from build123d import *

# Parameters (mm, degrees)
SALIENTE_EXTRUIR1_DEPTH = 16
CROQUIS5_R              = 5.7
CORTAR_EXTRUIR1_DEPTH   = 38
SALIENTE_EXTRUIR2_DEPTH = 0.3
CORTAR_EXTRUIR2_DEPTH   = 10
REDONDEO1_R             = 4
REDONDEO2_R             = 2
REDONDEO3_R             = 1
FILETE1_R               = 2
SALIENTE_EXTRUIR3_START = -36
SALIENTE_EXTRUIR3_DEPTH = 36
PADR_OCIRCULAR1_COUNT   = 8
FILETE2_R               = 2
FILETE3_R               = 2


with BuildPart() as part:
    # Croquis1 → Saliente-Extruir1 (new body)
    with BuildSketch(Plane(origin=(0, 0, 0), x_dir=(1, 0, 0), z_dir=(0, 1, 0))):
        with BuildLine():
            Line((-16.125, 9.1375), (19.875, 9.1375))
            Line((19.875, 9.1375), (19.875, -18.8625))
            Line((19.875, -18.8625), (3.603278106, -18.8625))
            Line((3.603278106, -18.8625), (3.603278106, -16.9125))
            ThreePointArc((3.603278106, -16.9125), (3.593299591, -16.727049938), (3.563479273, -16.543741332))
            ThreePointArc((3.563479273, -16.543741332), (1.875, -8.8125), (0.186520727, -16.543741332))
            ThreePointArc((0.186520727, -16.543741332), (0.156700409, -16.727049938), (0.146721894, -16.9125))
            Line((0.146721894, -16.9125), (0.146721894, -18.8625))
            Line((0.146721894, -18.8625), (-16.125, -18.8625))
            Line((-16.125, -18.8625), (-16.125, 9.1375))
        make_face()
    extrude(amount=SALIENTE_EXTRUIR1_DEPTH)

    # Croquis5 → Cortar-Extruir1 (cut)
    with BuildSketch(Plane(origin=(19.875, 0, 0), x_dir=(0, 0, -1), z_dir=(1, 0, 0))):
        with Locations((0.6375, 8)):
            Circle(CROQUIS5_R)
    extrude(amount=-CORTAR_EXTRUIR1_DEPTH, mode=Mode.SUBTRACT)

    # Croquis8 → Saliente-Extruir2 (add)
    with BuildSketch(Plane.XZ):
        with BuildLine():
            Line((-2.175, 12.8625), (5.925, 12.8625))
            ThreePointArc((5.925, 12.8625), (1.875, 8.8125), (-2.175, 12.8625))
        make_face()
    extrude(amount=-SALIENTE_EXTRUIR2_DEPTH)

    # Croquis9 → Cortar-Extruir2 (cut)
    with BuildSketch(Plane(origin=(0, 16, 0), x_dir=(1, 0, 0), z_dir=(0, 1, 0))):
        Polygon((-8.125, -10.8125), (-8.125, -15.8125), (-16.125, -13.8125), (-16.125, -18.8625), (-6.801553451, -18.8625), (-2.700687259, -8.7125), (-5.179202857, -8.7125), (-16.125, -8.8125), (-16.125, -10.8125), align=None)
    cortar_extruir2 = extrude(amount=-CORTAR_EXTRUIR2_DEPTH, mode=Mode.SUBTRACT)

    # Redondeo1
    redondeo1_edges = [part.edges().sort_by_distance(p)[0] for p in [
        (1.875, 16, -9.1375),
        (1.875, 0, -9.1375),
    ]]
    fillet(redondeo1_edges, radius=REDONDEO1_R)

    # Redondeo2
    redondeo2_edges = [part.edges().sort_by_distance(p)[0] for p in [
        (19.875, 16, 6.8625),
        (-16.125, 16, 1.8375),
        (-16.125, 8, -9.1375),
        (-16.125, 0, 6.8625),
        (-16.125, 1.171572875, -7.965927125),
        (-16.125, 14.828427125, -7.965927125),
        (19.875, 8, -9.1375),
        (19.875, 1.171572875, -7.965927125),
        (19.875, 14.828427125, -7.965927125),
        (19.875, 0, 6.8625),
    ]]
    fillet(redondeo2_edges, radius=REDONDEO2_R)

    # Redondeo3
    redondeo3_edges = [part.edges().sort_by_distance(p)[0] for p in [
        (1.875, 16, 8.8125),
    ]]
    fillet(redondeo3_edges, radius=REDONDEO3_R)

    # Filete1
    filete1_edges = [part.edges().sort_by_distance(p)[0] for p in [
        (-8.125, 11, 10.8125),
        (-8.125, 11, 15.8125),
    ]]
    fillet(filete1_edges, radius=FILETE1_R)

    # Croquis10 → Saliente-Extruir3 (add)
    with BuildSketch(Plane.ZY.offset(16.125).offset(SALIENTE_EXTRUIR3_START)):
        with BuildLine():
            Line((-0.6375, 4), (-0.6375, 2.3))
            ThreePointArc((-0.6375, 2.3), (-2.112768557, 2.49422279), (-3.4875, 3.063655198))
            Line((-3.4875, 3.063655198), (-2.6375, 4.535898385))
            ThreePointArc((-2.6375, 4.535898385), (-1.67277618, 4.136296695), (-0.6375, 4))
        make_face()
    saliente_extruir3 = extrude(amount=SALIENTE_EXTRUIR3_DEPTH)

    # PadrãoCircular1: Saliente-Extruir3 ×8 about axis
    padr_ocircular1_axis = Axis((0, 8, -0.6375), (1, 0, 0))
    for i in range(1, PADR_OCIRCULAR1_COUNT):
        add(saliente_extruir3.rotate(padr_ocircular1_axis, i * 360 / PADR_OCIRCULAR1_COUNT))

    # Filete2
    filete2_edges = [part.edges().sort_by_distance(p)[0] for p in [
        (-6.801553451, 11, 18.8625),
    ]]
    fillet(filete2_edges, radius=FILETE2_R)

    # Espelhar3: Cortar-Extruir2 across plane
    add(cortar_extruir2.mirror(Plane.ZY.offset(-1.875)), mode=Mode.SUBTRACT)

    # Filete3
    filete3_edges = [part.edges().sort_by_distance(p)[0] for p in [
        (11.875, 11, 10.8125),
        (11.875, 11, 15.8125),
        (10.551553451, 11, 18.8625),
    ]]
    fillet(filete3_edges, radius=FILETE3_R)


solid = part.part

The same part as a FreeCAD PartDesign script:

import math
import FreeCAD as App
import Part
import Sketcher
Q = App.Units.Quantity


def edges_at(feature, points):
    """Names of the edges that pass closest to the given points."""
    edges = feature.Shape.Edges
    near = lambda p: min(range(len(edges)), key=lambda i: edges[i].distToShape(Part.Vertex(*p))[0])
    return sorted({f"Edge{near(p) + 1}" for p in points})


def add_polygon(sketch, points):
    """Adds a closed chain of lines whose ends are joined by coincident constraints."""
    first, n = sketch.GeometryCount, len(points)
    for a, b in zip(points, points[1:] + points[:1]):
        sketch.addGeometry(Part.LineSegment(App.Vector(*a, 0), App.Vector(*b, 0)), False)
    for i in range(n):
        sketch.addConstraint(Sketcher.Constraint("Coincident", first + i, 2, first + (i + 1) % n, 1))

doc = App.newDocument("Part")
params = doc.addObject("Spreadsheet::Sheet", "Params")
for row, (alias, value) in enumerate([
    ("sketch1_width", "36 mm"),
    ("sketch1_height", "28 mm"),
    ("sketch1_radius", "4.05 mm"),
    ("sketch1_height2", "1.95 mm"),
    ("pad1_length", "16 mm"),
    ("sketch2_diameter", "11.4 mm"),
    ("pocket1_length", "38 mm"),
    ("sketch3_radius", "4.05 mm"),
    ("pad2_length", "0.3 mm"),
    ("sketch4_width", "8 mm"),
    ("sketch4_height", "5 mm"),
    ("sketch4_height2", "2 mm"),
    ("sketch4_height3", "5.05 mm"),
    ("pocket2_length", "10 mm"),
    ("fillet_radius", "4 mm"),
    ("fillet2_radius", "2 mm"),
    ("fillet3_radius", "1 mm"),
    ("fillet4_radius", "2 mm"),
    ("sketch5_radius", "4 mm"),
    ("sketch5_radius2", "5.7 mm"),
    ("pad3_length", "36 mm"),
    ("fillet5_radius", "2 mm"),
    ("fillet6_radius", "2 mm"),
], start=1):
    params.set(f"A{row}", alias)
    params.set(f"B{row}", "=" + value)
    params.setAlias(f"B{row}", alias)

body = doc.addObject("PartDesign::Body", "Body")

# Sketch on XZ plane
sketch1 = doc.addObject("Sketcher::SketchObject", "Sketch")
body.addObject(sketch1)
sketch1.AttachmentSupport = (doc.XZ_Plane, [""])
sketch1.MapMode = "FlatFace"
sketch1.addGeometry([
    Part.LineSegment(App.Vector(19.88, -9.14, 0), App.Vector(-16.12, -9.14, 0)),  # 0
    Part.LineSegment(App.Vector(-16.12, -9.14, 0), App.Vector(-16.12, 18.86, 0)),  # 1
    Part.LineSegment(App.Vector(-16.12, 18.86, 0), App.Vector(0.15, 18.86, 0)),  # 2
    Part.LineSegment(App.Vector(0.15, 18.86, 0), App.Vector(0.15, 16.91, 0)),  # 3
    Part.ArcOfCircle(Part.Circle(App.Vector(1.88, 16.91, 0), App.Vector(0, 0, 1), 1.73), math.radians(-180), math.radians(-167.68)),  # 4
    Part.ArcOfCircle(Part.Circle(App.Vector(1.88, 12.86, 0), App.Vector(0, 0, 1), 4.05), math.radians(115), math.radians(425)),  # 5
    Part.ArcOfCircle(Part.Circle(App.Vector(1.87, 16.91, 0), App.Vector(0, 0, 1), 1.73), math.radians(-12.32), math.radians(0)),  # 6
    Part.LineSegment(App.Vector(3.6, 16.91, 0), App.Vector(3.6, 18.86, 0)),  # 7
    Part.LineSegment(App.Vector(3.6, 18.86, 0), App.Vector(19.88, 18.86, 0)),  # 8
    Part.LineSegment(App.Vector(19.88, 18.86, 0), App.Vector(19.88, -9.14, 0)),  # 9
], False)
sketch1.addConstraint([
    Sketcher.Constraint("Coincident", 0, 2, 1, 1),
    Sketcher.Constraint("Coincident", 1, 2, 2, 1),
    Sketcher.Constraint("Coincident", 2, 2, 3, 1),
    Sketcher.Constraint("Tangent", 3, 2, 4, 1),
    Sketcher.Constraint("Coincident", 4, 2, 5, 1),
    Sketcher.Constraint("Coincident", 5, 2, 6, 1),
    Sketcher.Constraint("Tangent", 6, 2, 7, 1),
    Sketcher.Constraint("Coincident", 7, 2, 8, 1),
    Sketcher.Constraint("Coincident", 8, 2, 9, 1),
    Sketcher.Constraint("Coincident", 9, 2, 0, 1),
    Sketcher.Constraint("Horizontal", 0),
    Sketcher.Constraint("Vertical", 1),
    Sketcher.Constraint("Horizontal", 2),
    Sketcher.Constraint("Vertical", 3),
    Sketcher.Constraint("Vertical", 7),
    Sketcher.Constraint("Horizontal", 8),
    Sketcher.Constraint("Vertical", 9),
    Sketcher.Constraint("Coincident", 6, 3, 4, 3),
    Sketcher.Constraint("Equal", 4, 6),
    Sketcher.Constraint("Horizontal", 4, 2, 5, 2),
    Sketcher.Constraint("Horizontal", 2, 2, 7, 2),
    Sketcher.Constraint("Equal", 2, 8),
    Sketcher.Constraint("DistanceX", 0, 2, 0, 1, Q("36 mm")),
    Sketcher.Constraint("DistanceY", 1, 1, 1, 2, Q("28 mm")),
    Sketcher.Constraint("Radius", 5, Q("4.05 mm")),
    Sketcher.Constraint("DistanceY", 0, 2, 5, 3, Q("22 mm")),
    Sketcher.Constraint("DistanceY", 3, 2, 3, 1, Q("1.95 mm")),
    Sketcher.Constraint("Radius", 4, Q("1.728278 mm")),
    Sketcher.Constraint("DistanceX", -1, 1, 4, 3, Q("1.875 mm")),
    Sketcher.Constraint("DistanceY", -1, 1, 4, 3, Q("16.9125 mm")),
])
sketch1.setExpression("Constraints[22]", "Params.sketch1_width")
sketch1.setExpression("Constraints[23]", "Params.sketch1_height")
sketch1.setExpression("Constraints[24]", "Params.sketch1_radius")
sketch1.setExpression("Constraints[26]", "Params.sketch1_height2")
pad1 = doc.addObject("PartDesign::Pad", "Pad")
body.addObject(pad1)
pad1.Profile = sketch1
pad1.setExpression("Length", "Params.pad1_length")
pad1.Reversed = True

# Sketch on YZ plane
sketch2 = doc.addObject("Sketcher::SketchObject", "Sketch001")
body.addObject(sketch2)
sketch2.AttachmentSupport = (doc.YZ_Plane, [""])
sketch2.MapMode = "FlatFace"
sketch2.AttachmentOffset = App.Placement(App.Vector(0, 0, 19.875), App.Rotation())
sketch2.addGeometry(Part.Circle(App.Vector(8, -1, 0), App.Vector(0, 0, 1), 6), False)
sketch2.addConstraint([
    Sketcher.Constraint("Diameter", 0, Q("11.4 mm")),
    Sketcher.Constraint("DistanceX", -1, 1, 0, 3, Q("8 mm")),
    Sketcher.Constraint("DistanceY", 0, 3, -1, 1, Q("0.6375 mm")),
])
sketch2.setExpression("Constraints[0]", "Params.sketch2_diameter")
pocket1 = doc.addObject("PartDesign::Pocket", "Pocket")
body.addObject(pocket1)
pocket1.Profile = sketch2
pocket1.setExpression("Length", "Params.pocket1_length")

# Sketch on XZ plane
sketch3 = doc.addObject("Sketcher::SketchObject", "Sketch002")
body.addObject(sketch3)
sketch3.AttachmentSupport = (doc.XZ_Plane, [""])
sketch3.MapMode = "FlatFace"
sketch3.addGeometry([
    Part.LineSegment(App.Vector(5.9, 12.9, 0), App.Vector(-2.2, 12.9, 0)),
    Part.ArcOfCircle(Part.Circle(App.Vector(1.9, 12.9, 0), App.Vector(0, 0, 1), 4), math.radians(180), math.radians(360)),
], False)
sketch3.addConstraint([
    Sketcher.Constraint("Coincident", 0, 1, 1, 2),
    Sketcher.Constraint("Coincident", 1, 1, 0, 2),
    Sketcher.Constraint("Horizontal", 0),
    Sketcher.Constraint("Horizontal", 1, 3, 0, 1),
    Sketcher.Constraint("Radius", 1, Q("4.05 mm")),
    Sketcher.Constraint("DistanceX", -1, 1, 1, 3, Q("1.875 mm")),
    Sketcher.Constraint("DistanceY", -1, 1, 1, 3, Q("12.8625 mm")),
])
sketch3.setExpression("Constraints[4]", "Params.sketch3_radius")
pad2 = doc.addObject("PartDesign::Pad", "Pad001")
body.addObject(pad2)
pad2.Profile = sketch3
pad2.setExpression("Length", "Params.pad2_length")
pad2.Reversed = True

# Sketch on XZ plane
sketch4 = doc.addObject("Sketcher::SketchObject", "Sketch003")
body.addObject(sketch4)
sketch4.AttachmentSupport = (doc.XZ_Plane, [""])
sketch4.MapMode = "FlatFace"
sketch4.AttachmentOffset = App.Placement(App.Vector(0, 0, -16), App.Rotation())
add_polygon(sketch4, [(-8.1, 10.8), (-8.1, 15.8), (-16.1, 13.8), (-16.1, 18.9), (-6.8, 18.9), (-2.7, 8.7), (-5.2, 8.7), (-16.1, 8.8), (-16.1, 10.8)])  # lines 0-8
sketch4.addConstraint([
    Sketcher.Constraint("Vertical", 0),
    Sketcher.Constraint("Vertical", 2),
    Sketcher.Constraint("Horizontal", 3),
    Sketcher.Constraint("Horizontal", 5),
    Sketcher.Constraint("Vertical", 7),
    Sketcher.Constraint("Horizontal", 8),
    Sketcher.Constraint("Vertical", 2, 2, 6, 2),
    Sketcher.Constraint("DistanceX", 8, 1, 8, 2, Q("8 mm")),
    Sketcher.Constraint("DistanceY", 0, 1, 0, 2, Q("5 mm")),
    Sketcher.Constraint("DistanceY", 7, 1, 7, 2, Q("2 mm")),
    Sketcher.Constraint("Angle", 4, Q("-68 deg")),
    Sketcher.Constraint("DistanceY", 1, 2, 0, 2, Q("2 mm")),
    Sketcher.Constraint("DistanceY", 2, 1, 2, 2, Q("5.05 mm")),
    Sketcher.Constraint("DistanceY", 4, 2, 0, 2, Q("7.1 mm")),
    Sketcher.Constraint("DistanceX", 0, 2, -1, 1, Q("8.125 mm")),
    Sketcher.Constraint("DistanceY", -1, 1, 0, 2, Q("15.8125 mm")),
    Sketcher.Constraint("DistanceX", 3, 1, 3, 2, Q("9.323447 mm")),
    Sketcher.Constraint("DistanceX", 5, 2, 5, 1, Q("2.478516 mm")),
])
sketch4.setExpression("Constraints[16]", "Params.sketch4_width")
sketch4.setExpression("Constraints[17]", "Params.sketch4_height")
sketch4.setExpression("Constraints[18]", "Params.sketch4_height2")
sketch4.setExpression("Constraints[21]", "Params.sketch4_height3")
pocket2 = doc.addObject("PartDesign::Pocket", "Pocket001")
body.addObject(pocket2)
pocket2.Profile = sketch4
pocket2.setExpression("Length", "Params.pocket2_length")
pocket2.Reversed = True
doc.recompute()

fillet = doc.addObject("PartDesign::Fillet", "Fillet")
body.addObject(fillet)
fillet.Base = (pocket2, edges_at(pocket2, [(1.875, 16, -9.137), (1.875, 0, -9.137)]))
fillet.setExpression("Radius", "Params.fillet_radius")
doc.recompute()

fillet2 = doc.addObject("PartDesign::Fillet", "Fillet001")
body.addObject(fillet2)
fillet2.Base = (fillet, edges_at(fillet, [
    (19.875, 16, 6.862),
    (-16.125, 16, 1.837),
    (-16.125, 8, -9.137),
    (-16.125, 0, 6.862),
    (-16.125, 1.172, -7.966),
    (-16.125, 14.828, -7.966),
    (19.875, 8, -9.137),
    (19.875, 1.172, -7.966),
    (19.875, 14.828, -7.966),
    (19.875, 0, 6.862),
]))
fillet2.setExpression("Radius", "Params.fillet2_radius")
doc.recompute()

fillet3 = doc.addObject("PartDesign::Fillet", "Fillet002")
body.addObject(fillet3)
fillet3.Base = (fillet2, edges_at(fillet2, [(1.875, 16, 8.812)]))
fillet3.setExpression("Radius", "Params.fillet3_radius")
doc.recompute()

fillet4 = doc.addObject("PartDesign::Fillet", "Fillet003")
body.addObject(fillet4)
fillet4.Base = (fillet3, edges_at(fillet3, [(-8.125, 11, 10.812), (-8.125, 11, 15.812)]))
fillet4.setExpression("Radius", "Params.fillet4_radius")

# Sketch on YZ plane
sketch5 = doc.addObject("Sketcher::SketchObject", "Sketch004")
body.addObject(sketch5)
sketch5.AttachmentSupport = (doc.YZ_Plane, [""])
sketch5.MapMode = "FlatFace"
sketch5.AttachmentOffset = App.Placement(App.Vector(0, 0, 19.875), App.Rotation())
sketch5.addGeometry([
    Part.LineSegment(App.Vector(2.3, -0.6, 0), App.Vector(4, -0.6, 0)),
    Part.ArcOfCircle(Part.Circle(App.Vector(8, -0.6, 0), App.Vector(0, 0, 1), 4), math.radians(-180), math.radians(-150)),
    Part.LineSegment(App.Vector(4.5, -2.6, 0), App.Vector(3.1, -3.5, 0)),
    Part.ArcOfCircle(Part.Circle(App.Vector(8, -0.6, 0), App.Vector(0, 0, 1), 5.7), math.radians(180), math.radians(210)),
], False)
sketch5.addConstraint([
    Sketcher.Constraint("Coincident", 0, 2, 1, 1),
    Sketcher.Constraint("Coincident", 1, 2, 2, 1),
    Sketcher.Constraint("Coincident", 2, 2, 3, 2),
    Sketcher.Constraint("Coincident", 3, 1, 0, 1),
    Sketcher.Constraint("Horizontal", 0),
    Sketcher.Constraint("Coincident", 3, 3, 1, 3),
    Sketcher.Constraint("Horizontal", 3, 3, 0, 2),
    Sketcher.Constraint("Radius", 1, Q("4 mm")),
    Sketcher.Constraint("Radius", 3, Q("5.7 mm")),
    Sketcher.Constraint("Angle", 2, Q("-150 deg")),
    Sketcher.Constraint("DistanceX", -1, 1, 1, 3, Q("8 mm")),
    Sketcher.Constraint("DistanceY", 1, 2, 0, 2, Q("2 mm")),
    Sketcher.Constraint("DistanceY", 1, 3, -1, 1, Q("0.6375 mm")),
])
sketch5.setExpression("Constraints[7]", "Params.sketch5_radius")
sketch5.setExpression("Constraints[8]", "Params.sketch5_radius2")
pad3 = doc.addObject("PartDesign::Pad", "Pad002")
body.addObject(pad3)
pad3.Profile = sketch5
pad3.setExpression("Length", "Params.pad3_length")
pad3.Reversed = True
doc.recompute()

datumline = doc.addObject("PartDesign::Line", "DatumLine")
body.addObject(datumline)
datumline.Placement = App.Placement(App.Vector(0, 8, -0.6375), App.Rotation(App.Vector(0, 0, 1), App.Vector(1, 0, 0)))
polarpattern = doc.addObject("PartDesign::PolarPattern", "PolarPattern")
body.addObject(polarpattern)
polarpattern.Originals = [pad3]
polarpattern.Axis = (datumline, [""])
polarpattern.Angle = 360
polarpattern.Occurrences = 8
body.Tip = polarpattern
doc.recompute()

fillet5 = doc.addObject("PartDesign::Fillet", "Fillet004")
body.addObject(fillet5)
fillet5.Base = (polarpattern, edges_at(polarpattern, [(-6.802, 11, 18.863)]))
fillet5.setExpression("Radius", "Params.fillet5_radius")
doc.recompute()

datumplane = doc.addObject("PartDesign::Plane", "DatumPlane")
body.addObject(datumplane)
datumplane.AttachmentSupport = (doc.YZ_Plane, [""])
datumplane.MapMode = "FlatFace"
datumplane.AttachmentOffset = App.Placement(App.Vector(0, 0, 1.875), App.Rotation())
mirrored = doc.addObject("PartDesign::Mirrored", "Mirrored")
body.addObject(mirrored)
mirrored.Originals = [pocket2]
mirrored.MirrorPlane = (datumplane, [""])
body.Tip = mirrored
doc.recompute()

fillet6 = doc.addObject("PartDesign::Fillet", "Fillet005")
body.addObject(fillet6)
fillet6.Base = (mirrored, edges_at(mirrored, [(11.875, 11, 10.812), (11.875, 11, 15.812), (10.552, 11, 18.863)]))
fillet6.setExpression("Radius", "Params.fillet6_radius")

doc.recompute()
